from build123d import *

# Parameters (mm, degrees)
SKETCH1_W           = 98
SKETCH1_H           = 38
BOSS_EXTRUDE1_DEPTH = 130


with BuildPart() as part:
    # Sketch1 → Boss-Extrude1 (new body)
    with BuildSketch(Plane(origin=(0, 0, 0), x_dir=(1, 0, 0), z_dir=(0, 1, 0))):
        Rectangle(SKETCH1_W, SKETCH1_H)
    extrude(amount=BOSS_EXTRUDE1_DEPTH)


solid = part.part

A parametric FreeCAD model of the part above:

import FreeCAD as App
import Part
import Sketcher

V = App.Vector
Q = App.Units.Quantity

doc = App.newDocument("Part")
body = doc.addObject("PartDesign::Body", "Body")

# Sketch on XZ plane
sketch1 = body.newObject("Sketcher::SketchObject", "Sketch")
sketch1.AttachmentSupport = (doc.getObject("XZ_Plane"), [""])
sketch1.MapMode = "FlatFace"
sketch1.addGeometry([
    Part.LineSegment(V(-49, -19, 0), V(-49, 19, 0)),
    Part.LineSegment(V(-49, 19, 0), V(49, 19, 0)),
    Part.LineSegment(V(49, 19, 0), V(49, -19, 0)),
    Part.LineSegment(V(49, -19, 0), V(-49, -19, 0)),
], False)
sketch1.addConstraint([
    Sketcher.Constraint("Coincident", 0, 2, 1, 1),
    Sketcher.Constraint("Coincident", 1, 2, 2, 1),
    Sketcher.Constraint("Coincident", 2, 2, 3, 1),
    Sketcher.Constraint("Coincident", 3, 2, 0, 1),
    Sketcher.Constraint("Vertical", 0),
    Sketcher.Constraint("Horizontal", 1),
    Sketcher.Constraint("Vertical", 2),
    Sketcher.Constraint("Horizontal", 3),
    Sketcher.Constraint("Symmetric", 0, 2, 2, 2, -1, 1),
    Sketcher.Constraint("DistanceX", 1, 1, 1, 2, Q("98 mm")),
    Sketcher.Constraint("DistanceY", 0, 1, 0, 2, Q("38 mm")),
])
pad1 = body.newObject("PartDesign::Pad", "Pad")
pad1.Profile = sketch1
pad1.Length = 130
pad1.Reversed = True

doc.recompute()
